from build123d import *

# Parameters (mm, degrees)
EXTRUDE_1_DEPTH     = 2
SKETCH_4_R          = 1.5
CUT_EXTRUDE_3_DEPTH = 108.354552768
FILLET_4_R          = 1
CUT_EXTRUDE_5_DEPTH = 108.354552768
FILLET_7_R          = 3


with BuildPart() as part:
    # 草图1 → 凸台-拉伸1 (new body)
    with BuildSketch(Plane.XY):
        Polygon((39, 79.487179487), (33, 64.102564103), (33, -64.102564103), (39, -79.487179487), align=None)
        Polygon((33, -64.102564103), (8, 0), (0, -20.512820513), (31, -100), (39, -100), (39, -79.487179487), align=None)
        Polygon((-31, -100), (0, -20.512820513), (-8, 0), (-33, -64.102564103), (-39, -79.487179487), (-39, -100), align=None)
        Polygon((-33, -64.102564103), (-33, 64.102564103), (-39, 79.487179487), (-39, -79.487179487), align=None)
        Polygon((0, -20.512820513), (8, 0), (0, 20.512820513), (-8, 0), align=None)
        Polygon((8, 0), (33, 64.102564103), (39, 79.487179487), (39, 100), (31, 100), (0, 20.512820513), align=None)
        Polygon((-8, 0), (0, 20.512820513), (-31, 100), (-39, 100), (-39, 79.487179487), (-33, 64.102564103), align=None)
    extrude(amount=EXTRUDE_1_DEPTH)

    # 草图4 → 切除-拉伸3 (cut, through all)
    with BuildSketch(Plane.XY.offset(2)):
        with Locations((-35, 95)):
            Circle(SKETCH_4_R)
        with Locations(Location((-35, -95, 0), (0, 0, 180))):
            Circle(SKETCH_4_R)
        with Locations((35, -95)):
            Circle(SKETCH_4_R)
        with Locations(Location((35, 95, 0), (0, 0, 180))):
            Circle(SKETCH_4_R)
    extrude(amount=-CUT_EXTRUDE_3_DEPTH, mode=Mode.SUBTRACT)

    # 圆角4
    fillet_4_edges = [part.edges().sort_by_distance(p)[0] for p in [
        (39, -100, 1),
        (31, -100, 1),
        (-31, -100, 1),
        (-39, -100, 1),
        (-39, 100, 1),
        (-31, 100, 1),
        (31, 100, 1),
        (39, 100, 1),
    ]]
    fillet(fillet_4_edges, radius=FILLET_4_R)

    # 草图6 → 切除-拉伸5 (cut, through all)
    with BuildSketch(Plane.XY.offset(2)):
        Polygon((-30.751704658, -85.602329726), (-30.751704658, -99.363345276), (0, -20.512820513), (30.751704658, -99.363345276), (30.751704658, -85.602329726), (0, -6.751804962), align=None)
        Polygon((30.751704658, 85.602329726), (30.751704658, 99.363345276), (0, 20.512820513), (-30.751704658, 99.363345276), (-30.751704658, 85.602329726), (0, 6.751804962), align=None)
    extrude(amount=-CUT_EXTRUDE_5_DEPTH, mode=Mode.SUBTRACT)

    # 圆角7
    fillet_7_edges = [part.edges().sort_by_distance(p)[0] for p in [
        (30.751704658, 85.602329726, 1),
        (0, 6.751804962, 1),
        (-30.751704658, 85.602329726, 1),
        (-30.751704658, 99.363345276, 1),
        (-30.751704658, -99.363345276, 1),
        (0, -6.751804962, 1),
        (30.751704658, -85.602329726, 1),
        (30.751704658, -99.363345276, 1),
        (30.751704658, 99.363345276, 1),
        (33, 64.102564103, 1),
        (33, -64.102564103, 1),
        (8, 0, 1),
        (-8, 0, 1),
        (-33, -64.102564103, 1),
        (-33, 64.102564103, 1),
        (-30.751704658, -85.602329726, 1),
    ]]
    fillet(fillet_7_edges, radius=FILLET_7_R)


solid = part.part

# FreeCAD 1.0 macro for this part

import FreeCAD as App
import Part
import Sketcher


def edges_at(feature, points):
    """Names of the edges that pass closest to the given points."""
    edges = feature.Shape.Edges
    near = lambda p: min(range(len(edges)), key=lambda i: edges[i].distToShape(Part.Vertex(*p))[0])
    return sorted({f"Edge{near(p) + 1}" for p in points})


def add_polygon(sketch, points):
    """Adds a closed chain of lines whose ends are joined by coincident constraints."""
    first, n = sketch.GeometryCount, len(points)
    for a, b in zip(points, points[1:] + points[:1]):
        sketch.addGeometry(Part.LineSegment(App.Vector(*a, 0), App.Vector(*b, 0)), False)
    for i in range(n):
        sketch.addConstraint(Sketcher.Constraint("Coincident", first + i, 2, first + (i + 1) % n, 1))

doc = App.newDocument("Part")
body = doc.addObject("PartDesign::Body", "Body")

# Sketch on XY plane
sketch1 = body.newObject("Sketcher::SketchObject", "Sketch")
sketch1.AttachmentSupport = (doc.getObject("XY_Plane"), [""])
sketch1.MapMode = "FlatFace"
add_polygon(sketch1, [(-31, 100), (-39, 100), (-39, -100), (-31, -100), (0, -20.512821), (31, -100), (39, -100), (39, 100), (31, 100), (0, 20.512821)])  # lines 0-9
add_polygon(sketch1, [(8, 0), (33, 64.102564), (33, -64.102564)])  # lines 10-12
add_polygon(sketch1, [(-33, 64.102564), (-8, 0), (-33, -64.102564)])  # lines 13-15
sketch1.addConstraint(Sketcher.Constraint("Horizontal", 0))
sketch1.addConstraint(Sketcher.Constraint("Vertical", 1))
sketch1.addConstraint(Sketcher.Constraint("Horizontal", 2))
sketch1.addConstraint(Sketcher.Constraint("Horizontal", 5))
sketch1.addConstraint(Sketcher.Constraint("Vertical", 6))
sketch1.addConstraint(Sketcher.Constraint("Horizontal", 7))
sketch1.addConstraint(Sketcher.Constraint("Vertical", 11))
sketch1.addConstraint(Sketcher.Constraint("Vertical", 15))
sketch1.addConstraint(Sketcher.Constraint("Symmetric", 0, 2, 5, 2, -1, 1))
sketch1.addConstraint(Sketcher.Constraint("Symmetric", 2, 2, 7, 2, -1, 1))
sketch1.addConstraint(Sketcher.Constraint("Symmetric", 3, 2, 8, 2, -1, 1))
sketch1.addConstraint(Sketcher.Constraint("Symmetric", 12, 2, 13, 2, -1, 1))
sketch1.addConstraint(Sketcher.Constraint("Symmetric", 10, 2, 14, 2, -1, 1))
sketch1.addConstraint(Sketcher.Constraint("Symmetric", 2, 2, 4, 2, -2))
sketch1.addConstraint(Sketcher.Constraint("PointOnObject", 3, 2, -2))
sketch1.addConstraint(Sketcher.Constraint("PointOnObject", 12, 2, -1))
sketch1.addConstraint(Sketcher.Constraint("Parallel", 4, 9))
sketch1.addConstraint(Sketcher.Constraint("Parallel", 8, 10))
sketch1.addConstraint(Sketcher.Constraint("Parallel", 9, 12))
sketch1.addConstraint(Sketcher.Constraint("Parallel", 12, 13))
sketch1.addConstraint(Sketcher.Constraint("DistanceX", 0, 2, 0, 1, 8.0))
sketch1.addConstraint(Sketcher.Constraint("DistanceY", 1, 2, 1, 1, 200.0))
sketch1.addConstraint(Sketcher.Constraint("DistanceX", 0, 2, -1, 1, 39.0))
sketch1.addConstraint(Sketcher.Constraint("DistanceX", -1, 1, 10, 2, 33.0))
sketch1.addConstraint(Sketcher.Constraint("DistanceX", -1, 1, 12, 2, 8.0))
sketch1.addConstraint(Sketcher.Constraint("DistanceY", 11, 2, 11, 1, 128.205128))
pad1 = body.newObject("PartDesign::Pad", "Pad")
pad1.Profile = sketch1
pad1.Length = 2

# Sketch on XY plane
sketch2 = body.newObject("Sketcher::SketchObject", "Sketch001")
sketch2.AttachmentSupport = (doc.getObject("XY_Plane"), [""])
sketch2.MapMode = "FlatFace"
sketch2.AttachmentOffset = App.Placement(App.Vector(0, 0, 2), App.Rotation())
sketch2.addGeometry(Part.Circle(App.Vector(-35, 95, 0), App.Vector(0, 0, 1), 1.5), False)
sketch2.addGeometry(Part.Circle(App.Vector(-35, -95, 0), App.Vector(0, 0, 1), 1.5), False)
sketch2.addGeometry(Part.Circle(App.Vector(35, -95, 0), App.Vector(0, 0, 1), 1.5), False)
sketch2.addGeometry(Part.Circle(App.Vector(35, 95, 0), App.Vector(0, 0, 1), 1.5), False)
sketch2.addConstraint(Sketcher.Constraint("Equal", 0, 1))
sketch2.addConstraint(Sketcher.Constraint("Equal", 1, 2))
sketch2.addConstraint(Sketcher.Constraint("Equal", 2, 3))
sketch2.addConstraint(Sketcher.Constraint("Symmetric", 0, 3, 2, 3, -1, 1))
sketch2.addConstraint(Sketcher.Constraint("Symmetric", 1, 3, 3, 3, -1, 1))
sketch2.addConstraint(Sketcher.Constraint("Symmetric", 1, 3, 2, 3, -2))
sketch2.addConstraint(Sketcher.Constraint("Diameter", 0, 3.0))
sketch2.addConstraint(Sketcher.Constraint("DistanceX", 0, 3, -1, 1, 35.0))
sketch2.addConstraint(Sketcher.Constraint("DistanceY", -1, 1, 0, 3, 95.0))
pocket1 = body.newObject("PartDesign::Pocket", "Pocket")
pocket1.Profile = sketch2
pocket1.Type = "ThroughAll"
doc.recompute()

fillet = body.newObject("PartDesign::Fillet", "Fillet")
fillet.Base = (pocket1, edges_at(pocket1, [
    (39, -100, 1),
    (31, -100, 1),
    (-31, -100, 1),
    (-39, -100, 1),
    (-39, 100, 1),
    (-31, 100, 1),
    (31, 100, 1),
    (39, 100, 1),
]))
fillet.Radius = 1

# Sketch on XY plane
sketch3 = body.newObject("Sketcher::SketchObject", "Sketch002")
sketch3.AttachmentSupport = (doc.getObject("XY_Plane"), [""])
sketch3.MapMode = "FlatFace"
sketch3.AttachmentOffset = App.Placement(App.Vector(0, 0, 2), App.Rotation())
add_polygon(sketch3, [(-30.751705, -85.60233), (-30.751705, -99.363345), (0, -20.512821), (30.751705, -99.363345), (30.751705, -85.60233), (0, -6.751805)])  # lines 0-5
add_polygon(sketch3, [(30.751705, 85.60233), (30.751705, 99.363345), (0, 20.512821), (-30.751705, 99.363345), (-30.751705, 85.60233), (0, 6.751805)])  # lines 6-11
sketch3.addConstraint(Sketcher.Constraint("Vertical", 0))
sketch3.addConstraint(Sketcher.Constraint("Vertical", 3))
sketch3.addConstraint(Sketcher.Constraint("Vertical", 6))
sketch3.addConstraint(Sketcher.Constraint("Vertical", 9))
sketch3.addConstraint(Sketcher.Constraint("Symmetric", 0, 2, 6, 2, -1, 1))
sketch3.addConstraint(Sketcher.Constraint("Symmetric", 1, 2, 7, 2, -1, 1))
sketch3.addConstraint(Sketcher.Constraint("Symmetric", 2, 2, 8, 2, -1, 1))
sketch3.addConstraint(Sketcher.Constraint("Symmetric", 4, 2, 10, 2, -1, 1))
sketch3.addConstraint(Sketcher.Constraint("Symmetric", 0, 2, 2, 2, -2))
sketch3.addConstraint(Sketcher.Constraint("PointOnObject", 1, 2, -2))
sketch3.addConstraint(Sketcher.Constraint("PointOnObject", 4, 2, -2))
sketch3.addConstraint(Sketcher.Constraint("Parallel", 2, 4))
sketch3.addConstraint(Sketcher.Constraint("Parallel", 1, 5))
sketch3.addConstraint(Sketcher.Constraint("Parallel", 8, 10))
sketch3.addConstraint(Sketcher.Constraint("Parallel", 7, 11))
sketch3.addConstraint(Sketcher.Constraint("DistanceY", 0, 2, 0, 1, 13.761016))
sketch3.addConstraint(Sketcher.Constraint("DistanceY", 1, 2, -1, 1, 20.512821))
sketch3.addConstraint(Sketcher.Constraint("DistanceY", 3, 2, -1, 1, 85.60233))
sketch3.addConstraint(Sketcher.Constraint("DistanceX", 0, 2, 2, 2, 61.503409))
pocket2 = body.newObject("PartDesign::Pocket", "Pocket001")
pocket2.Profile = sketch3
pocket2.Type = "ThroughAll"
doc.recompute()

fillet2 = body.newObject("PartDesign::Fillet", "Fillet001")
fillet2.Base = (pocket2, edges_at(pocket2, [
    (30.752, 85.602, 1),
    (0, 6.752, 1),
    (-30.752, 85.602, 1),
    (-30.752, 99.363, 1),
    (-30.752, -99.363, 1),
    (0, -6.752, 1),
    (30.752, -85.602, 1),
    (30.752, -99.363, 1),
    (30.752, 99.363, 1),
    (33, 64.103, 1),
    (33, -64.103, 1),
    (8, 0, 1),
    (-8, 0, 1),
    (-33, -64.103, 1),
    (-33, 64.103, 1),
    (-30.752, -85.602, 1),
]))
fillet2.Radius = 3

doc.recompute()
